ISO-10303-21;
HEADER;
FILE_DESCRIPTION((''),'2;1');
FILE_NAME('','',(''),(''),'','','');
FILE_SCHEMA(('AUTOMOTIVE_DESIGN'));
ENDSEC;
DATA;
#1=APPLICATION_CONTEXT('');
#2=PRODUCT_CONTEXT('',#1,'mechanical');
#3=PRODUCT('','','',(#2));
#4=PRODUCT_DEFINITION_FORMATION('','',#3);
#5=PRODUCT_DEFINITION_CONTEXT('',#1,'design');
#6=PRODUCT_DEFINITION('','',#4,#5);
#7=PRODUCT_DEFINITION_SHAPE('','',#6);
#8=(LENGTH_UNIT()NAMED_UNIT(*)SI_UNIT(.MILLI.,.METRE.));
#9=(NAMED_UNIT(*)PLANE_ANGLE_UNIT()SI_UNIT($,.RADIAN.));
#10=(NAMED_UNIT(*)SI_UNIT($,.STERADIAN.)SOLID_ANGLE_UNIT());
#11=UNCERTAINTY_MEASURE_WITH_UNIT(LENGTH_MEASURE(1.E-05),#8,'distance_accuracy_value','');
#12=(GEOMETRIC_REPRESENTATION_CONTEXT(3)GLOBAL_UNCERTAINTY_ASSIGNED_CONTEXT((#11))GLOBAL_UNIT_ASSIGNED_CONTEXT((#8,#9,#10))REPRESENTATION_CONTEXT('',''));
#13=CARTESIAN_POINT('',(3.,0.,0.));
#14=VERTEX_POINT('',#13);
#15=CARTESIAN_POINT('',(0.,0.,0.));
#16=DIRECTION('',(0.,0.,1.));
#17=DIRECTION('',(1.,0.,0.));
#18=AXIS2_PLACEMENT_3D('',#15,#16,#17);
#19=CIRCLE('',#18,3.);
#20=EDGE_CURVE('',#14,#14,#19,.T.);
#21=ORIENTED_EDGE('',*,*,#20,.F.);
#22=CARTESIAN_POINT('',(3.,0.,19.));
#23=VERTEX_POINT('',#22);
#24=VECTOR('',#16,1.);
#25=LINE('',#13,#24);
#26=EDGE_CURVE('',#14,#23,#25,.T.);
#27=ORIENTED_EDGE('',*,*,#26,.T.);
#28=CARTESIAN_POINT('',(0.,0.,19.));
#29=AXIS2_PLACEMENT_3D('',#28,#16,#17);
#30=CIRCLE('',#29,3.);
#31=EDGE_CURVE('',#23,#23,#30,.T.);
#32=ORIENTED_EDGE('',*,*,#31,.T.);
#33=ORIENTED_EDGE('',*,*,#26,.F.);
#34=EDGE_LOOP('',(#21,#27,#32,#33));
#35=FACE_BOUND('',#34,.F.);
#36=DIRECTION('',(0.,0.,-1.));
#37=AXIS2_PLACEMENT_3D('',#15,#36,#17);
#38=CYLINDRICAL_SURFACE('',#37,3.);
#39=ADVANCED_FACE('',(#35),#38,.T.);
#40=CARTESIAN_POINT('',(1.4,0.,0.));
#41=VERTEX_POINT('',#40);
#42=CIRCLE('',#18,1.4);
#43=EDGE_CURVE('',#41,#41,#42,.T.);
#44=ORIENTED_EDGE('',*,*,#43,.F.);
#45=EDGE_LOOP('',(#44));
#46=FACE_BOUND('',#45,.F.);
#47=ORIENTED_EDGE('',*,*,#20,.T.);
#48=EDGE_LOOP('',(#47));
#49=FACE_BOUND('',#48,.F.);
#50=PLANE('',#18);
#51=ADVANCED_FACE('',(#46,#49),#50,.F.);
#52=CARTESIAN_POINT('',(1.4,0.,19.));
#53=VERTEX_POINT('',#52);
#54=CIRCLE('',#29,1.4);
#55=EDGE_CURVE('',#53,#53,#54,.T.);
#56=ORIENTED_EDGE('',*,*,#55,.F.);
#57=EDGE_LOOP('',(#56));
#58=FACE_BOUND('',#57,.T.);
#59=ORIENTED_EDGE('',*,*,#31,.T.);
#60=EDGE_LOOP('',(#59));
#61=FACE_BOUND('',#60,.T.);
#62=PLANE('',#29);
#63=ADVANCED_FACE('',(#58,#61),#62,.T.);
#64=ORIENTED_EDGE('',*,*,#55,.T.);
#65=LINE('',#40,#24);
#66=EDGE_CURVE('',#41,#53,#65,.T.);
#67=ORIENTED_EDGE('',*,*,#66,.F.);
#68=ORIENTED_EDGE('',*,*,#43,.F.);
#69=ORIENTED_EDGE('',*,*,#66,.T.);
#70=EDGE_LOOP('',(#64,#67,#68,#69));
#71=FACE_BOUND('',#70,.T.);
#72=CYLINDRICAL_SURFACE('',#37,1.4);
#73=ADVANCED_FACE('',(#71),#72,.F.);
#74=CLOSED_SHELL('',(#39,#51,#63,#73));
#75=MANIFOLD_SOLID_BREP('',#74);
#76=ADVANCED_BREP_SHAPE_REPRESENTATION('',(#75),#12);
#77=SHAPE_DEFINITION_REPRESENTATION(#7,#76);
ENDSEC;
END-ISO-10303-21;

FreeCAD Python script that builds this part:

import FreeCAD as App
import Part
import Sketcher

V = App.Vector
Q = App.Units.Quantity

doc = App.newDocument("Part")
params = doc.addObject("Spreadsheet::Sheet", "Params")
for row, (alias, value) in enumerate([
    ("sketch1_diameter", "6 mm"),
    ("sketch1_diameter2", "2.8 mm"),
    ("pad1_length", "19 mm"),
], start=1):
    params.set(f"A{row}", alias)
    params.set(f"B{row}", "=" + value)
    params.setAlias(f"B{row}", alias)

body = doc.addObject("PartDesign::Body", "Body")

# Sketch on XY plane
sketch1 = doc.addObject("Sketcher::SketchObject", "Sketch")
body.addObject(sketch1)
sketch1.AttachmentSupport = (doc.XY_Plane, [""])
sketch1.MapMode = "FlatFace"
sketch1.addGeometry(Part.Circle(V(0, 0, 0), V(0, 0, 1), 3), False)
sketch1.addGeometry(Part.Circle(V(0, 0, 0), V(0, 0, 1), 1.4), False)
sketch1.addConstraint(Sketcher.Constraint("Coincident", 0, 3, -1, 1))
sketch1.addConstraint(Sketcher.Constraint("Coincident", 1, 3, -1, 1))
sketch1.addConstraint(Sketcher.Constraint("Diameter", 0, Q("6 mm")))
sketch1.addConstraint(Sketcher.Constraint("Diameter", 1, Q("2.8 mm")))
sketch1.setExpression("Constraints[2]", "Params.sketch1_diameter")
sketch1.setExpression("Constraints[3]", "Params.sketch1_diameter2")
pad1 = doc.addObject("PartDesign::Pad", "Pad")
body.addObject(pad1)
pad1.Profile = sketch1
pad1.setExpression("Length", "Params.pad1_length")

doc.recompute()
